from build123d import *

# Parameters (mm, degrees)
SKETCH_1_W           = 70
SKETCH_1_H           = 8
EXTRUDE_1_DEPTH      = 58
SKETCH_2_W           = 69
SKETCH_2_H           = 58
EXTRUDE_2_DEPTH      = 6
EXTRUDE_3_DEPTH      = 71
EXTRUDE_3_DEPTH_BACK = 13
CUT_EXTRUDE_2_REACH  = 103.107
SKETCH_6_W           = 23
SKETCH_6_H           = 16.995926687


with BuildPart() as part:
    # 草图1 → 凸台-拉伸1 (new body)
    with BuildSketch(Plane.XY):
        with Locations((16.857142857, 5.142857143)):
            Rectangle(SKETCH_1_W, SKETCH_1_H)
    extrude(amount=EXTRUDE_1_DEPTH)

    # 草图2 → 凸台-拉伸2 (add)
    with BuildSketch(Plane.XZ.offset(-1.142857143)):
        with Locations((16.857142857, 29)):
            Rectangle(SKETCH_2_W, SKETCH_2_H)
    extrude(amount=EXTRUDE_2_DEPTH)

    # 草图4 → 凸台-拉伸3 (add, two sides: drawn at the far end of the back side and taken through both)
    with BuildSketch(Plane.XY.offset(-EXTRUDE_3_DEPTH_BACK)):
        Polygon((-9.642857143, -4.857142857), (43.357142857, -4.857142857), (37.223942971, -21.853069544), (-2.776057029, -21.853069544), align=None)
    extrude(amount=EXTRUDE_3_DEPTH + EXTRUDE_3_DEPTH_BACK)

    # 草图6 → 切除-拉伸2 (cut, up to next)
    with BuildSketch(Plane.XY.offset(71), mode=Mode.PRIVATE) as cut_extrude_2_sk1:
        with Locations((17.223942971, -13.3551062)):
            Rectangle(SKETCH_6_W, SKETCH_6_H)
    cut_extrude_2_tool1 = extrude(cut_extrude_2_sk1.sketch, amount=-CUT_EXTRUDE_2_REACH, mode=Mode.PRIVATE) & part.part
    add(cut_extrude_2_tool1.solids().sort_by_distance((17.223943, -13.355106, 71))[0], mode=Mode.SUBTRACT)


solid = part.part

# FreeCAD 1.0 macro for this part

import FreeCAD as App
import Part
import Sketcher
Q = App.Units.Quantity

doc = App.newDocument("Part")
body = doc.addObject("PartDesign::Body", "Body")

sketch1 = body.newObject("Sketcher::SketchObject", "Sketch")
sketch1.AttachmentSupport = (doc.getObject("XY_Plane"), [""])
sketch1.MapMode = "FlatFace"
sketch1.addGeometry([
    Part.LineSegment(App.Vector(-18, 9, 0), App.Vector(-18, 1, 0)),
    Part.LineSegment(App.Vector(-18, 1, 0), App.Vector(52, 1, 0)),
    Part.LineSegment(App.Vector(52, 1, 0), App.Vector(52, 9, 0)),
    Part.LineSegment(App.Vector(52, 9, 0), App.Vector(-18, 9, 0)),
], False)
sketch1.addConstraint([
    Sketcher.Constraint("Coincident", 0, 2, 1, 1),
    Sketcher.Constraint("Coincident", 1, 2, 2, 1),
    Sketcher.Constraint("Coincident", 2, 2, 3, 1),
    Sketcher.Constraint("Coincident", 3, 2, 0, 1),
    Sketcher.Constraint("Vertical", 0),
    Sketcher.Constraint("Horizontal", 1),
    Sketcher.Constraint("Vertical", 2),
    Sketcher.Constraint("Horizontal", 3),
    Sketcher.Constraint("DistanceX", 1, 1, 1, 2, 70.0),
    Sketcher.Constraint("DistanceY", 0, 2, 0, 1, 8.0),
    Sketcher.Constraint("DistanceX", 0, 2, -1, 1, 18.142857),
    Sketcher.Constraint("DistanceY", -1, 1, 0, 2, 1.142857),
])
pad1 = body.newObject("PartDesign::Pad", "Pad")
pad1.Profile = sketch1
pad1.Length = 58

sketch2 = body.newObject("Sketcher::SketchObject", "Sketch001")
sketch2.AttachmentSupport = (doc.getObject("XZ_Plane"), [""])
sketch2.MapMode = "FlatFace"
sketch2.AttachmentOffset = App.Placement(App.Vector(0, 0, -1.142857), App.Rotation())
sketch2.addGeometry([
    Part.LineSegment(App.Vector(-18, 58, 0), App.Vector(-18, 0, 0)),
    Part.LineSegment(App.Vector(-18, 0, 0), App.Vector(51, 0, 0)),
    Part.LineSegment(App.Vector(51, 0, 0), App.Vector(51, 58, 0)),
    Part.LineSegment(App.Vector(51, 58, 0), App.Vector(-18, 58, 0)),
], False)
sketch2.addConstraint([
    Sketcher.Constraint("Coincident", 0, 2, 1, 1),
    Sketcher.Constraint("Coincident", 1, 2, 2, 1),
    Sketcher.Constraint("Coincident", 2, 2, 3, 1),
    Sketcher.Constraint("Coincident", 3, 2, 0, 1),
    Sketcher.Constraint("Vertical", 0),
    Sketcher.Constraint("Horizontal", 1),
    Sketcher.Constraint("Vertical", 2),
    Sketcher.Constraint("Horizontal", 3),
    Sketcher.Constraint("PointOnObject", 0, 2, -1),
    Sketcher.Constraint("DistanceX", 1, 1, 1, 2, 69.0),
    Sketcher.Constraint("DistanceY", 0, 2, 0, 1, 58.0),
    Sketcher.Constraint("DistanceX", 0, 2, -1, 1, 17.642857),
])
pad2 = body.newObject("PartDesign::Pad", "Pad001")
pad2.Profile = sketch2
pad2.Length = 6

sketch3 = body.newObject("Sketcher::SketchObject", "Sketch002")
sketch3.AttachmentSupport = (doc.getObject("XY_Plane"), [""])
sketch3.MapMode = "FlatFace"
sketch3.addGeometry([
    Part.LineSegment(App.Vector(43, -5, 0), App.Vector(-10, -5, 0)),
    Part.LineSegment(App.Vector(-10, -5, 0), App.Vector(-3, -22, 0)),
    Part.LineSegment(App.Vector(-3, -22, 0), App.Vector(37, -22, 0)),
    Part.LineSegment(App.Vector(37, -22, 0), App.Vector(43, -5, 0)),
], False)
sketch3.addConstraint([
    Sketcher.Constraint("Coincident", 0, 2, 1, 1),
    Sketcher.Constraint("Coincident", 1, 2, 2, 1),
    Sketcher.Constraint("Coincident", 2, 2, 3, 1),
    Sketcher.Constraint("Coincident", 3, 2, 0, 1),
    Sketcher.Constraint("Horizontal", 0),
    Sketcher.Constraint("Horizontal", 2),
    Sketcher.Constraint("DistanceX", 0, 2, 0, 1, 53.0),
    Sketcher.Constraint("DistanceX", 2, 1, 2, 2, 40.0),
    Sketcher.Constraint("Angle", 1, Q("-68 deg")),
    Sketcher.Constraint("DistanceX", 0, 2, 1, 2, 6.8668),
    Sketcher.Constraint("DistanceY", 1, 2, -1, 1, 21.85307),
    Sketcher.Constraint("DistanceX", 0, 2, -1, 1, 9.642857),
])
pad3 = body.newObject("PartDesign::Pad", "Pad002")
pad3.Profile = sketch3
pad3.Type = "TwoLengths"
pad3.Length = 71
pad3.Length2 = 13

sketch4 = body.newObject("Sketcher::SketchObject", "Sketch003")
sketch4.AttachmentSupport = (doc.getObject("XY_Plane"), [""])
sketch4.MapMode = "FlatFace"
sketch4.AttachmentOffset = App.Placement(App.Vector(0, 0, 71), App.Rotation())
sketch4.addGeometry([
    Part.LineSegment(App.Vector(6, -5, 0), App.Vector(6, -22, 0)),
    Part.LineSegment(App.Vector(6, -22, 0), App.Vector(29, -22, 0)),
    Part.LineSegment(App.Vector(29, -22, 0), App.Vector(29, -5, 0)),
    Part.LineSegment(App.Vector(29, -5, 0), App.Vector(6, -5, 0)),
], False)
sketch4.addConstraint([
    Sketcher.Constraint("Coincident", 0, 2, 1, 1),
    Sketcher.Constraint("Coincident", 1, 2, 2, 1),
    Sketcher.Constraint("Coincident", 2, 2, 3, 1),
    Sketcher.Constraint("Coincident", 3, 2, 0, 1),
    Sketcher.Constraint("Vertical", 0),
    Sketcher.Constraint("Horizontal", 1),
    Sketcher.Constraint("Vertical", 2),
    Sketcher.Constraint("Horizontal", 3),
    Sketcher.Constraint("DistanceX", 1, 1, 1, 2, 23.0),
    Sketcher.Constraint("DistanceY", 0, 2, 0, 1, 16.995927),
    Sketcher.Constraint("DistanceY", 0, 2, -1, 1, 21.85307),
    Sketcher.Constraint("DistanceX", -1, 1, 0, 2, 5.723943),
])
pocket1 = body.newObject("PartDesign::Pocket", "Pocket")
pocket1.Profile = sketch4
pocket1.Type = "UpToFirst"

doc.recompute()
